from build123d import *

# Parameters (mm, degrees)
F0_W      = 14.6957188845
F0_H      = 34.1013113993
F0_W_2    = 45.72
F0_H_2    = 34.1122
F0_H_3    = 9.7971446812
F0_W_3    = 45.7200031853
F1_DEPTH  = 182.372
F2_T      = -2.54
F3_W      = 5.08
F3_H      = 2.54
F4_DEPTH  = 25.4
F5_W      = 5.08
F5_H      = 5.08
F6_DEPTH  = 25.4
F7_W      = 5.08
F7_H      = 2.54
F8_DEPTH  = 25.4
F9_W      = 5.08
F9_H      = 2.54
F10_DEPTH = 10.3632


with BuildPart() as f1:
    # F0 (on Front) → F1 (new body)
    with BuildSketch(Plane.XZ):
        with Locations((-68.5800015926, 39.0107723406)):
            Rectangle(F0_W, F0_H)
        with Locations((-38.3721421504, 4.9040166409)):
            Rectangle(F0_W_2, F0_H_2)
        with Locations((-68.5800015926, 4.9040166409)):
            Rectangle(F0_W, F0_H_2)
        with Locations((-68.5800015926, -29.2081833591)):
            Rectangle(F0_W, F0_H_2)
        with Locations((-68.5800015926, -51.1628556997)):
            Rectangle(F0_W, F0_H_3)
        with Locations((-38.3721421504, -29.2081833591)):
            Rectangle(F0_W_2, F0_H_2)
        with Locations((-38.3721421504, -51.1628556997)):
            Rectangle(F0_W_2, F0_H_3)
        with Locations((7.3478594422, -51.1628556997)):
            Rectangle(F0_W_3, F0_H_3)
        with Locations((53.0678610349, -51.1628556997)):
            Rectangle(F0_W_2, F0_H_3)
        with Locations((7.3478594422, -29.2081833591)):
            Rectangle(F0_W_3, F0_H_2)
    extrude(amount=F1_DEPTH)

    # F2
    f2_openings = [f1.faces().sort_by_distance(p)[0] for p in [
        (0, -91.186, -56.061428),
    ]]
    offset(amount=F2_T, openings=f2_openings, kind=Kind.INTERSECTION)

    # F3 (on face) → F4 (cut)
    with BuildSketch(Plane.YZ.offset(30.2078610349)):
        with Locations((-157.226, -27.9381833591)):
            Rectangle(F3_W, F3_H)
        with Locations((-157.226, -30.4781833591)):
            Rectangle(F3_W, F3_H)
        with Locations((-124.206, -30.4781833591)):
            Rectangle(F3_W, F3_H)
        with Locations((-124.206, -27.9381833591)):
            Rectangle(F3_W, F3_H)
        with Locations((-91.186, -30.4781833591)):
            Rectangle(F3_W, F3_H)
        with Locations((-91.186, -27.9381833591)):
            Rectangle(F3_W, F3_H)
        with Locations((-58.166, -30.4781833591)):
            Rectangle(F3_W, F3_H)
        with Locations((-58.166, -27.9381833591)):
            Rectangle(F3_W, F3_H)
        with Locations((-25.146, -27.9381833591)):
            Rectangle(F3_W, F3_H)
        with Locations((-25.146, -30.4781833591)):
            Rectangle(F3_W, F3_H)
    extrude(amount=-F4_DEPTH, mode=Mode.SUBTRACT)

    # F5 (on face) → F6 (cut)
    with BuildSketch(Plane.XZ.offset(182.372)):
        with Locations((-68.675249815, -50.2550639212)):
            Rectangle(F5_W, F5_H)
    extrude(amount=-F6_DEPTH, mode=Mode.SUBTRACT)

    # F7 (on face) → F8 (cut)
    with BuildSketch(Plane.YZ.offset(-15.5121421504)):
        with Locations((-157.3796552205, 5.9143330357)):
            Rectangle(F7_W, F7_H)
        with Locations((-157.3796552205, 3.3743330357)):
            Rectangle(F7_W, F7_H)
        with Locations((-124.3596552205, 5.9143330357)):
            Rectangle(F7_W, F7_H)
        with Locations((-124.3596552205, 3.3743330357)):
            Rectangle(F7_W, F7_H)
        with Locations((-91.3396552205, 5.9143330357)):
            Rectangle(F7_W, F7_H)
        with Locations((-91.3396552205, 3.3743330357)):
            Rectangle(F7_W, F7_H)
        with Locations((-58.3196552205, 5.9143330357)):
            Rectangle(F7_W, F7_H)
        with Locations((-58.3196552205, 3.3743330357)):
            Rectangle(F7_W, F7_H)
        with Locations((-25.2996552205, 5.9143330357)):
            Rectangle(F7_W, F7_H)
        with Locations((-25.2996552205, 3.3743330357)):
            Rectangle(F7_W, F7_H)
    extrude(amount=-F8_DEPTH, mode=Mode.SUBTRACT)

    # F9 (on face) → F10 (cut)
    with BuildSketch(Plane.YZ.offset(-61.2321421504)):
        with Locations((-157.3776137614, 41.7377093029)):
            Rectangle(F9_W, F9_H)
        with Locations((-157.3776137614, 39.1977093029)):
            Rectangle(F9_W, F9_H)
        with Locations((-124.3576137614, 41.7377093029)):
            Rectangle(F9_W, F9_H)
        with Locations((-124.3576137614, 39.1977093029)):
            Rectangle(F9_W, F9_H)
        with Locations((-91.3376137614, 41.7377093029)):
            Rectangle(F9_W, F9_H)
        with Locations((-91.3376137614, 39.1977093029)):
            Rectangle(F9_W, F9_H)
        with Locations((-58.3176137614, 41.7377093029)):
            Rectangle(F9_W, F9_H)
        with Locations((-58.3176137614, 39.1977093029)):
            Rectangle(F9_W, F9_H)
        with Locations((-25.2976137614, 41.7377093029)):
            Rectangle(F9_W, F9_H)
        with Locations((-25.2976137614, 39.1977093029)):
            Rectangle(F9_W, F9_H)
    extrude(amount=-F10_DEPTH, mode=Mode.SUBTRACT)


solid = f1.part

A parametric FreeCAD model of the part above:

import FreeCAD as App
import Part
import Sketcher

V = App.Vector
Q = App.Units.Quantity


def faces_at(feature, points):
    """Names of the faces that lie closest to the given points."""
    faces = feature.Shape.Faces
    near = lambda p: min(range(len(faces)), key=lambda i: faces[i].distToShape(Part.Vertex(*p))[0])
    return sorted({f"Face{near(p) + 1}" for p in points})

doc = App.newDocument("Part")
body = doc.addObject("PartDesign::Body", "Body")

# Sketch on XZ plane
sketch1 = body.newObject("Sketcher::SketchObject", "Sketch")
sketch1.AttachmentSupport = (doc.getObject("XZ_Plane"), [""])
sketch1.MapMode = "FlatFace"
sketch1.addGeometry([
    Part.LineSegment(V(-76, 56, 0), V(-76, -56, 0)),  # 0
    Part.LineSegment(V(-76, -56, 0), V(76, -56, 0)),  # 1
    Part.LineSegment(V(76, -56, 0), V(76, -46, 0)),  # 2
    Part.LineSegment(V(76, -46, 0), V(30, -46, 0)),  # 3
    Part.LineSegment(V(30, -46, 0), V(30, -12, 0)),  # 4
    Part.LineSegment(V(30, -12, 0), V(-16, -12, 0)),  # 5
    Part.LineSegment(V(-16, -12, 0), V(-16, 22, 0)),  # 6
    Part.LineSegment(V(-16, 22, 0), V(-61, 22, 0)),  # 7
    Part.LineSegment(V(-61, 22, 0), V(-61, 56, 0)),  # 8
    Part.LineSegment(V(-61, 56, 0), V(-76, 56, 0)),  # 9
], False)
sketch1.addConstraint([
    Sketcher.Constraint("Coincident", 0, 2, 1, 1),
    Sketcher.Constraint("Coincident", 1, 2, 2, 1),
    Sketcher.Constraint("Coincident", 2, 2, 3, 1),
    Sketcher.Constraint("Coincident", 3, 2, 4, 1),
    Sketcher.Constraint("Coincident", 4, 2, 5, 1),
    Sketcher.Constraint("Coincident", 5, 2, 6, 1),
    Sketcher.Constraint("Coincident", 6, 2, 7, 1),
    Sketcher.Constraint("Coincident", 7, 2, 8, 1),
    Sketcher.Constraint("Coincident", 8, 2, 9, 1),
    Sketcher.Constraint("Coincident", 9, 2, 0, 1),
    Sketcher.Constraint("Vertical", 0),
    Sketcher.Constraint("Horizontal", 1),
    Sketcher.Constraint("Vertical", 2),
    Sketcher.Constraint("Horizontal", 3),
    Sketcher.Constraint("Vertical", 4),
    Sketcher.Constraint("Horizontal", 5),
    Sketcher.Constraint("Vertical", 6),
    Sketcher.Constraint("Horizontal", 7),
    Sketcher.Constraint("Vertical", 8),
    Sketcher.Constraint("Horizontal", 9),
    Sketcher.Constraint("Symmetric", 1, 2, 9, 2, -1, 1),
    Sketcher.Constraint("Equal", 3, 7),
    Sketcher.Constraint("Equal", 4, 6),
    Sketcher.Constraint("DistanceX", 3, 2, 3, 1, Q("1.8 in")),
    Sketcher.Constraint("DistanceX", 5, 2, 5, 1, Q("1.8000001 in")),
    Sketcher.Constraint("DistanceY", 4, 1, 4, 2, Q("1.343 in")),
    Sketcher.Constraint("DistanceX", 9, 2, 9, 1, 14.695719),
    Sketcher.Constraint("DistanceY", 8, 1, 8, 2, 34.101311),
    Sketcher.Constraint("DistanceY", 0, 2, 0, 1, 112.122856),
])
pad1 = body.newObject("PartDesign::Pad", "Pad")
pad1.Profile = sketch1
pad1.Length = Q("7.18 in")
doc.recompute()

thickness = body.newObject("PartDesign::Thickness", "Thickness")
thickness.Base = (pad1, faces_at(pad1, [(0, -91.186, -56.061)]))
thickness.Value = Q("0.1 in")
thickness.Reversed = True
thickness.Join = "Intersection"

# Sketch on YZ plane
sketch2 = body.newObject("Sketcher::SketchObject", "Sketch001")
sketch2.AttachmentSupport = (doc.getObject("YZ_Plane"), [""])
sketch2.MapMode = "FlatFace"
sketch2.AttachmentOffset = App.Placement(V(0, 0, 30.207861), App.Rotation())
sketch2.addGeometry([
    Part.LineSegment(V(-160, -27, 0), V(-160, -32, 0)),  # 0
    Part.LineSegment(V(-160, -32, 0), V(-155, -32, 0)),  # 1
    Part.LineSegment(V(-155, -32, 0), V(-155, -27, 0)),  # 2
    Part.LineSegment(V(-155, -27, 0), V(-160, -27, 0)),  # 3
    Part.LineSegment(V(-127, -32, 0), V(-122, -32, 0)),  # 4
    Part.LineSegment(V(-122, -32, 0), V(-122, -27, 0)),  # 5
    Part.LineSegment(V(-122, -27, 0), V(-127, -27, 0)),  # 6
    Part.LineSegment(V(-127, -27, 0), V(-127, -32, 0)),  # 7
    Part.LineSegment(V(-94, -32, 0), V(-89, -32, 0)),  # 8
    Part.LineSegment(V(-89, -32, 0), V(-89, -27, 0)),  # 9
    Part.LineSegment(V(-89, -27, 0), V(-94, -27, 0)),  # 10
    Part.LineSegment(V(-94, -27, 0), V(-94, -32, 0)),  # 11
    Part.LineSegment(V(-61, -32, 0), V(-56, -32, 0)),  # 12
    Part.LineSegment(V(-56, -32, 0), V(-56, -27, 0)),  # 13
    Part.LineSegment(V(-56, -27, 0), V(-61, -27, 0)),  # 14
    Part.LineSegment(V(-61, -27, 0), V(-61, -32, 0)),  # 15
    Part.LineSegment(V(-28, -27, 0), V(-28, -32, 0)),  # 16
    Part.LineSegment(V(-28, -32, 0), V(-23, -32, 0)),  # 17
    Part.LineSegment(V(-23, -32, 0), V(-23, -27, 0)),  # 18
    Part.LineSegment(V(-23, -27, 0), V(-28, -27, 0)),  # 19
], False)
sketch2.addConstraint([
    Sketcher.Constraint("Coincident", 0, 2, 1, 1),
    Sketcher.Constraint("Coincident", 1, 2, 2, 1),
    Sketcher.Constraint("Coincident", 2, 2, 3, 1),
    Sketcher.Constraint("Coincident", 3, 2, 0, 1),
    Sketcher.Constraint("Coincident", 4, 2, 5, 1),
    Sketcher.Constraint("Coincident", 5, 2, 6, 1),
    Sketcher.Constraint("Coincident", 6, 2, 7, 1),
    Sketcher.Constraint("Coincident", 7, 2, 4, 1),
    Sketcher.Constraint("Coincident", 8, 2, 9, 1),
    Sketcher.Constraint("Coincident", 9, 2, 10, 1),
    Sketcher.Constraint("Coincident", 10, 2, 11, 1),
    Sketcher.Constraint("Coincident", 11, 2, 8, 1),
    Sketcher.Constraint("Coincident", 12, 2, 13, 1),
    Sketcher.Constraint("Coincident", 13, 2, 14, 1),
    Sketcher.Constraint("Coincident", 14, 2, 15, 1),
    Sketcher.Constraint("Coincident", 15, 2, 12, 1),
    Sketcher.Constraint("Coincident", 16, 2, 17, 1),
    Sketcher.Constraint("Coincident", 17, 2, 18, 1),
    Sketcher.Constraint("Coincident", 18, 2, 19, 1),
    Sketcher.Constraint("Coincident", 19, 2, 16, 1),
    Sketcher.Constraint("Vertical", 0),
    Sketcher.Constraint("Horizontal", 1),
    Sketcher.Constraint("Vertical", 2),
    Sketcher.Constraint("Horizontal", 3),
    Sketcher.Constraint("Horizontal", 4),
    Sketcher.Constraint("Vertical", 5),
    Sketcher.Constraint("Horizontal", 6),
    Sketcher.Constraint("Vertical", 7),
    Sketcher.Constraint("Horizontal", 8),
    Sketcher.Constraint("Vertical", 9),
    Sketcher.Constraint("Horizontal", 10),
    Sketcher.Constraint("Vertical", 11),
    Sketcher.Constraint("Horizontal", 12),
    Sketcher.Constraint("Vertical", 13),
    Sketcher.Constraint("Horizontal", 14),
    Sketcher.Constraint("Vertical", 15),
    Sketcher.Constraint("Vertical", 16),
    Sketcher.Constraint("Horizontal", 17),
    Sketcher.Constraint("Vertical", 18),
    Sketcher.Constraint("Horizontal", 19),
    Sketcher.Constraint("Horizontal", 1, 2, 4, 2),
    Sketcher.Constraint("Horizontal", 3, 2, 5, 2),
    Sketcher.Constraint("Horizontal", 7, 2, 8, 2),
    Sketcher.Constraint("Horizontal", 6, 2, 9, 2),
    Sketcher.Constraint("Horizontal", 11, 2, 12, 2),
    Sketcher.Constraint("Horizontal", 10, 2, 13, 2),
    Sketcher.Constraint("Horizontal", 15, 2, 16, 2),
    Sketcher.Constraint("Horizontal", 14, 2, 18, 2),
    Sketcher.Constraint("Equal", 3, 4),
    Sketcher.Constraint("Equal", 6, 8),
    Sketcher.Constraint("Equal", 10, 12),
    Sketcher.Constraint("Equal", 14, 17),
    Sketcher.Constraint("Equal", 19, 0),
    Sketcher.Constraint("DistanceX", 1, 1, 1, 2, Q("0.2 in")),
    Sketcher.Constraint("DistanceX", 1, 2, 4, 2, Q("1.3 in")),
    Sketcher.Constraint("DistanceX", 4, 2, 8, 2, Q("1.3 in")),
    Sketcher.Constraint("DistanceX", 8, 2, 12, 2, Q("1.3 in")),
    Sketcher.Constraint("DistanceX", 12, 2, 16, 2, Q("1.1 in")),
    Sketcher.Constraint("DistanceX", 0, 2, -1, 1, Q("6.29 in")),
    Sketcher.Constraint("DistanceY", 0, 2, -1, 1, 31.748183),
])
pocket1 = body.newObject("PartDesign::Pocket", "Pocket")
pocket1.Profile = sketch2
pocket1.Length = Q("1 in")

# Sketch on XZ plane
sketch3 = body.newObject("Sketcher::SketchObject", "Sketch002")
sketch3.AttachmentSupport = (doc.getObject("XZ_Plane"), [""])
sketch3.MapMode = "FlatFace"
sketch3.AttachmentOffset = App.Placement(V(0, 0, 7.18 * 25.4), App.Rotation())
sketch3.addGeometry([
    Part.LineSegment(V(-71, -48, 0), V(-71, -53, 0)),
    Part.LineSegment(V(-71, -53, 0), V(-66, -53, 0)),
    Part.LineSegment(V(-66, -53, 0), V(-66, -48, 0)),
    Part.LineSegment(V(-66, -48, 0), V(-71, -48, 0)),
], False)
sketch3.addConstraint([
    Sketcher.Constraint("Coincident", 0, 2, 1, 1),
    Sketcher.Constraint("Coincident", 1, 2, 2, 1),
    Sketcher.Constraint("Coincident", 2, 2, 3, 1),
    Sketcher.Constraint("Coincident", 3, 2, 0, 1),
    Sketcher.Constraint("Vertical", 0),
    Sketcher.Constraint("Horizontal", 1),
    Sketcher.Constraint("Vertical", 2),
    Sketcher.Constraint("Horizontal", 3),
    Sketcher.Constraint("Equal", 3, 0),
    Sketcher.Constraint("DistanceX", 1, 1, 1, 2, Q("0.2 in")),
    Sketcher.Constraint("DistanceX", 0, 2, -1, 1, 71.21525),
    Sketcher.Constraint("DistanceY", 0, 2, -1, 1, 52.795064),
])
pocket2 = body.newObject("PartDesign::Pocket", "Pocket001")
pocket2.Profile = sketch3
pocket2.Length = Q("1 in")

# Sketch on YZ plane
sketch4 = body.newObject("Sketcher::SketchObject", "Sketch003")
sketch4.AttachmentSupport = (doc.getObject("YZ_Plane"), [""])
sketch4.MapMode = "FlatFace"
sketch4.AttachmentOffset = App.Placement(V(0, 0, -15.512142), App.Rotation())
sketch4.addGeometry([
    Part.LineSegment(V(-160, 7, 0), V(-160, 2, 0)),  # 0
    Part.LineSegment(V(-160, 2, 0), V(-155, 2, 0)),  # 1
    Part.LineSegment(V(-155, 2, 0), V(-155, 7, 0)),  # 2
    Part.LineSegment(V(-155, 7, 0), V(-160, 7, 0)),  # 3
    Part.LineSegment(V(-127, 7, 0), V(-127, 2, 0)),  # 4
    Part.LineSegment(V(-127, 2, 0), V(-122, 2, 0)),  # 5
    Part.LineSegment(V(-122, 2, 0), V(-122, 7, 0)),  # 6
    Part.LineSegment(V(-122, 7, 0), V(-127, 7, 0)),  # 7
    Part.LineSegment(V(-94, 7, 0), V(-94, 2, 0)),  # 8
    Part.LineSegment(V(-94, 2, 0), V(-89, 2, 0)),  # 9
    Part.LineSegment(V(-89, 2, 0), V(-89, 7, 0)),  # 10
    Part.LineSegment(V(-89, 7, 0), V(-94, 7, 0)),  # 11
    Part.LineSegment(V(-61, 7, 0), V(-61, 2, 0)),  # 12
    Part.LineSegment(V(-61, 2, 0), V(-56, 2, 0)),  # 13
    Part.LineSegment(V(-56, 2, 0), V(-56, 7, 0)),  # 14
    Part.LineSegment(V(-56, 7, 0), V(-61, 7, 0)),  # 15
    Part.LineSegment(V(-28, 7, 0), V(-28, 2, 0)),  # 16
    Part.LineSegment(V(-28, 2, 0), V(-23, 2, 0)),  # 17
    Part.LineSegment(V(-23, 2, 0), V(-23, 7, 0)),  # 18
    Part.LineSegment(V(-23, 7, 0), V(-28, 7, 0)),  # 19
], False)
sketch4.addConstraint([
    Sketcher.Constraint("Coincident", 0, 2, 1, 1),
    Sketcher.Constraint("Coincident", 1, 2, 2, 1),
    Sketcher.Constraint("Coincident", 2, 2, 3, 1),
    Sketcher.Constraint("Coincident", 3, 2, 0, 1),
    Sketcher.Constraint("Coincident", 4, 2, 5, 1),
    Sketcher.Constraint("Coincident", 5, 2, 6, 1),
    Sketcher.Constraint("Coincident", 6, 2, 7, 1),
    Sketcher.Constraint("Coincident", 7, 2, 4, 1),
    Sketcher.Constraint("Coincident", 8, 2, 9, 1),
    Sketcher.Constraint("Coincident", 9, 2, 10, 1),
    Sketcher.Constraint("Coincident", 10, 2, 11, 1),
    Sketcher.Constraint("Coincident", 11, 2, 8, 1),
    Sketcher.Constraint("Coincident", 12, 2, 13, 1),
    Sketcher.Constraint("Coincident", 13, 2, 14, 1),
    Sketcher.Constraint("Coincident", 14, 2, 15, 1),
    Sketcher.Constraint("Coincident", 15, 2, 12, 1),
    Sketcher.Constraint("Coincident", 16, 2, 17, 1),
    Sketcher.Constraint("Coincident", 17, 2, 18, 1),
    Sketcher.Constraint("Coincident", 18, 2, 19, 1),
    Sketcher.Constraint("Coincident", 19, 2, 16, 1),
    Sketcher.Constraint("Vertical", 0),
    Sketcher.Constraint("Horizontal", 1),
    Sketcher.Constraint("Vertical", 2),
    Sketcher.Constraint("Horizontal", 3),
    Sketcher.Constraint("Vertical", 4),
    Sketcher.Constraint("Horizontal", 5),
    Sketcher.Constraint("Vertical", 6),
    Sketcher.Constraint("Horizontal", 7),
    Sketcher.Constraint("Vertical", 8),
    Sketcher.Constraint("Horizontal", 9),
    Sketcher.Constraint("Vertical", 10),
    Sketcher.Constraint("Horizontal", 11),
    Sketcher.Constraint("Vertical", 12),
    Sketcher.Constraint("Horizontal", 13),
    Sketcher.Constraint("Vertical", 14),
    Sketcher.Constraint("Horizontal", 15),
    Sketcher.Constraint("Vertical", 16),
    Sketcher.Constraint("Horizontal", 17),
    Sketcher.Constraint("Vertical", 18),
    Sketcher.Constraint("Horizontal", 19),
    Sketcher.Constraint("Horizontal", 1, 2, 4, 2),
    Sketcher.Constraint("Horizontal", 3, 2, 6, 2),
    Sketcher.Constraint("Horizontal", 5, 2, 8, 2),
    Sketcher.Constraint("Horizontal", 7, 2, 10, 2),
    Sketcher.Constraint("Horizontal", 9, 2, 12, 2),
    Sketcher.Constraint("Horizontal", 11, 2, 14, 2),
    Sketcher.Constraint("Horizontal", 13, 2, 16, 2),
    Sketcher.Constraint("Horizontal", 15, 2, 18, 2),
    Sketcher.Constraint("Equal", 3, 5),
    Sketcher.Constraint("Equal", 7, 9),
    Sketcher.Constraint("Equal", 11, 13),
    Sketcher.Constraint("Equal", 15, 17),
    Sketcher.Constraint("Equal", 19, 0),
    Sketcher.Constraint("DistanceX", 1, 1, 1, 2, Q("0.2 in")),
    Sketcher.Constraint("DistanceX", 1, 2, 4, 2, Q("1.1 in")),
    Sketcher.Constraint("DistanceX", 5, 2, 8, 2, Q("1.1 in")),
    Sketcher.Constraint("DistanceX", 9, 2, 12, 2, Q("1.1 in")),
    Sketcher.Constraint("DistanceX", 13, 2, 16, 2, Q("1.1 in")),
    Sketcher.Constraint("DistanceX", 0, 2, -1, 1, 159.919655),
    Sketcher.Constraint("DistanceY", -1, 1, 0, 2, 2.104333),
])
pocket3 = body.newObject("PartDesign::Pocket", "Pocket002")
pocket3.Profile = sketch4
pocket3.Length = Q("1 in")

# Sketch on YZ plane
sketch5 = body.newObject("Sketcher::SketchObject", "Sketch004")
sketch5.AttachmentSupport = (doc.getObject("YZ_Plane"), [""])
sketch5.MapMode = "FlatFace"
sketch5.AttachmentOffset = App.Placement(V(0, 0, -61.232142), App.Rotation())
sketch5.addGeometry([
    Part.LineSegment(V(-160, 43, 0), V(-160, 38, 0)),  # 0
    Part.LineSegment(V(-160, 38, 0), V(-155, 38, 0)),  # 1
    Part.LineSegment(V(-155, 38, 0), V(-155, 43, 0)),  # 2
    Part.LineSegment(V(-155, 43, 0), V(-160, 43, 0)),  # 3
    Part.LineSegment(V(-127, 43, 0), V(-127, 38, 0)),  # 4
    Part.LineSegment(V(-127, 38, 0), V(-122, 38, 0)),  # 5
    Part.LineSegment(V(-122, 38, 0), V(-122, 43, 0)),  # 6
    Part.LineSegment(V(-122, 43, 0), V(-127, 43, 0)),  # 7
    Part.LineSegment(V(-94, 43, 0), V(-94, 38, 0)),  # 8
    Part.LineSegment(V(-94, 38, 0), V(-89, 38, 0)),  # 9
    Part.LineSegment(V(-89, 38, 0), V(-89, 43, 0)),  # 10
    Part.LineSegment(V(-89, 43, 0), V(-94, 43, 0)),  # 11
    Part.LineSegment(V(-61, 43, 0), V(-61, 38, 0)),  # 12
    Part.LineSegment(V(-61, 38, 0), V(-56, 38, 0)),  # 13
    Part.LineSegment(V(-56, 38, 0), V(-56, 43, 0)),  # 14
    Part.LineSegment(V(-56, 43, 0), V(-61, 43, 0)),  # 15
    Part.LineSegment(V(-28, 43, 0), V(-28, 38, 0)),  # 16
    Part.LineSegment(V(-28, 38, 0), V(-23, 38, 0)),  # 17
    Part.LineSegment(V(-23, 38, 0), V(-23, 43, 0)),  # 18
    Part.LineSegment(V(-23, 43, 0), V(-28, 43, 0)),  # 19
], False)
sketch5.addConstraint([
    Sketcher.Constraint("Coincident", 0, 2, 1, 1),
    Sketcher.Constraint("Coincident", 1, 2, 2, 1),
    Sketcher.Constraint("Coincident", 2, 2, 3, 1),
    Sketcher.Constraint("Coincident", 3, 2, 0, 1),
    Sketcher.Constraint("Coincident", 4, 2, 5, 1),
    Sketcher.Constraint("Coincident", 5, 2, 6, 1),
    Sketcher.Constraint("Coincident", 6, 2, 7, 1),
    Sketcher.Constraint("Coincident", 7, 2, 4, 1),
    Sketcher.Constraint("Coincident", 8, 2, 9, 1),
    Sketcher.Constraint("Coincident", 9, 2, 10, 1),
    Sketcher.Constraint("Coincident", 10, 2, 11, 1),
    Sketcher.Constraint("Coincident", 11, 2, 8, 1),
    Sketcher.Constraint("Coincident", 12, 2, 13, 1),
    Sketcher.Constraint("Coincident", 13, 2, 14, 1),
    Sketcher.Constraint("Coincident", 14, 2, 15, 1),
    Sketcher.Constraint("Coincident", 15, 2, 12, 1),
    Sketcher.Constraint("Coincident", 16, 2, 17, 1),
    Sketcher.Constraint("Coincident", 17, 2, 18, 1),
    Sketcher.Constraint("Coincident", 18, 2, 19, 1),
    Sketcher.Constraint("Coincident", 19, 2, 16, 1),
    Sketcher.Constraint("Vertical", 0),
    Sketcher.Constraint("Horizontal", 1),
    Sketcher.Constraint("Vertical", 2),
    Sketcher.Constraint("Horizontal", 3),
    Sketcher.Constraint("Vertical", 4),
    Sketcher.Constraint("Horizontal", 5),
    Sketcher.Constraint("Vertical", 6),
    Sketcher.Constraint("Horizontal", 7),
    Sketcher.Constraint("Vertical", 8),
    Sketcher.Constraint("Horizontal", 9),
    Sketcher.Constraint("Vertical", 10),
    Sketcher.Constraint("Horizontal", 11),
    Sketcher.Constraint("Vertical", 12),
    Sketcher.Constraint("Horizontal", 13),
    Sketcher.Constraint("Vertical", 14),
    Sketcher.Constraint("Horizontal", 15),
    Sketcher.Constraint("Vertical", 16),
    Sketcher.Constraint("Horizontal", 17),
    Sketcher.Constraint("Vertical", 18),
    Sketcher.Constraint("Horizontal", 19),
    Sketcher.Constraint("Horizontal", 1, 2, 4, 2),
    Sketcher.Constraint("Horizontal", 3, 2, 6, 2),
    Sketcher.Constraint("Horizontal", 5, 2, 8, 2),
    Sketcher.Constraint("Horizontal", 7, 2, 10, 2),
    Sketcher.Constraint("Horizontal", 9, 2, 12, 2),
    Sketcher.Constraint("Horizontal", 11, 2, 14, 2),
    Sketcher.Constraint("Horizontal", 13, 2, 16, 2),
    Sketcher.Constraint("Horizontal", 15, 2, 18, 2),
    Sketcher.Constraint("Equal", 3, 5),
    Sketcher.Constraint("Equal", 7, 9),
    Sketcher.Constraint("Equal", 11, 13),
    Sketcher.Constraint("Equal", 15, 17),
    Sketcher.Constraint("Equal", 19, 0),
    Sketcher.Constraint("DistanceX", 1, 1, 1, 2, Q("0.2 in")),
    Sketcher.Constraint("DistanceX", 1, 2, 4, 2, Q("1.1 in")),
    Sketcher.Constraint("DistanceX", 5, 2, 8, 2, Q("1.1 in")),
    Sketcher.Constraint("DistanceX", 9, 2, 12, 2, Q("1.1 in")),
    Sketcher.Constraint("DistanceX", 13, 2, 16, 2, Q("1.1 in")),
    Sketcher.Constraint("DistanceY", -1, 1, 0, 2, 37.927709),
    Sketcher.Constraint("DistanceX", 0, 2, -1, 1, 159.917614),
])
pocket4 = body.newObject("PartDesign::Pocket", "Pocket003")
pocket4.Profile = sketch5
pocket4.Length = Q("0.408 in")

doc.recompute()
